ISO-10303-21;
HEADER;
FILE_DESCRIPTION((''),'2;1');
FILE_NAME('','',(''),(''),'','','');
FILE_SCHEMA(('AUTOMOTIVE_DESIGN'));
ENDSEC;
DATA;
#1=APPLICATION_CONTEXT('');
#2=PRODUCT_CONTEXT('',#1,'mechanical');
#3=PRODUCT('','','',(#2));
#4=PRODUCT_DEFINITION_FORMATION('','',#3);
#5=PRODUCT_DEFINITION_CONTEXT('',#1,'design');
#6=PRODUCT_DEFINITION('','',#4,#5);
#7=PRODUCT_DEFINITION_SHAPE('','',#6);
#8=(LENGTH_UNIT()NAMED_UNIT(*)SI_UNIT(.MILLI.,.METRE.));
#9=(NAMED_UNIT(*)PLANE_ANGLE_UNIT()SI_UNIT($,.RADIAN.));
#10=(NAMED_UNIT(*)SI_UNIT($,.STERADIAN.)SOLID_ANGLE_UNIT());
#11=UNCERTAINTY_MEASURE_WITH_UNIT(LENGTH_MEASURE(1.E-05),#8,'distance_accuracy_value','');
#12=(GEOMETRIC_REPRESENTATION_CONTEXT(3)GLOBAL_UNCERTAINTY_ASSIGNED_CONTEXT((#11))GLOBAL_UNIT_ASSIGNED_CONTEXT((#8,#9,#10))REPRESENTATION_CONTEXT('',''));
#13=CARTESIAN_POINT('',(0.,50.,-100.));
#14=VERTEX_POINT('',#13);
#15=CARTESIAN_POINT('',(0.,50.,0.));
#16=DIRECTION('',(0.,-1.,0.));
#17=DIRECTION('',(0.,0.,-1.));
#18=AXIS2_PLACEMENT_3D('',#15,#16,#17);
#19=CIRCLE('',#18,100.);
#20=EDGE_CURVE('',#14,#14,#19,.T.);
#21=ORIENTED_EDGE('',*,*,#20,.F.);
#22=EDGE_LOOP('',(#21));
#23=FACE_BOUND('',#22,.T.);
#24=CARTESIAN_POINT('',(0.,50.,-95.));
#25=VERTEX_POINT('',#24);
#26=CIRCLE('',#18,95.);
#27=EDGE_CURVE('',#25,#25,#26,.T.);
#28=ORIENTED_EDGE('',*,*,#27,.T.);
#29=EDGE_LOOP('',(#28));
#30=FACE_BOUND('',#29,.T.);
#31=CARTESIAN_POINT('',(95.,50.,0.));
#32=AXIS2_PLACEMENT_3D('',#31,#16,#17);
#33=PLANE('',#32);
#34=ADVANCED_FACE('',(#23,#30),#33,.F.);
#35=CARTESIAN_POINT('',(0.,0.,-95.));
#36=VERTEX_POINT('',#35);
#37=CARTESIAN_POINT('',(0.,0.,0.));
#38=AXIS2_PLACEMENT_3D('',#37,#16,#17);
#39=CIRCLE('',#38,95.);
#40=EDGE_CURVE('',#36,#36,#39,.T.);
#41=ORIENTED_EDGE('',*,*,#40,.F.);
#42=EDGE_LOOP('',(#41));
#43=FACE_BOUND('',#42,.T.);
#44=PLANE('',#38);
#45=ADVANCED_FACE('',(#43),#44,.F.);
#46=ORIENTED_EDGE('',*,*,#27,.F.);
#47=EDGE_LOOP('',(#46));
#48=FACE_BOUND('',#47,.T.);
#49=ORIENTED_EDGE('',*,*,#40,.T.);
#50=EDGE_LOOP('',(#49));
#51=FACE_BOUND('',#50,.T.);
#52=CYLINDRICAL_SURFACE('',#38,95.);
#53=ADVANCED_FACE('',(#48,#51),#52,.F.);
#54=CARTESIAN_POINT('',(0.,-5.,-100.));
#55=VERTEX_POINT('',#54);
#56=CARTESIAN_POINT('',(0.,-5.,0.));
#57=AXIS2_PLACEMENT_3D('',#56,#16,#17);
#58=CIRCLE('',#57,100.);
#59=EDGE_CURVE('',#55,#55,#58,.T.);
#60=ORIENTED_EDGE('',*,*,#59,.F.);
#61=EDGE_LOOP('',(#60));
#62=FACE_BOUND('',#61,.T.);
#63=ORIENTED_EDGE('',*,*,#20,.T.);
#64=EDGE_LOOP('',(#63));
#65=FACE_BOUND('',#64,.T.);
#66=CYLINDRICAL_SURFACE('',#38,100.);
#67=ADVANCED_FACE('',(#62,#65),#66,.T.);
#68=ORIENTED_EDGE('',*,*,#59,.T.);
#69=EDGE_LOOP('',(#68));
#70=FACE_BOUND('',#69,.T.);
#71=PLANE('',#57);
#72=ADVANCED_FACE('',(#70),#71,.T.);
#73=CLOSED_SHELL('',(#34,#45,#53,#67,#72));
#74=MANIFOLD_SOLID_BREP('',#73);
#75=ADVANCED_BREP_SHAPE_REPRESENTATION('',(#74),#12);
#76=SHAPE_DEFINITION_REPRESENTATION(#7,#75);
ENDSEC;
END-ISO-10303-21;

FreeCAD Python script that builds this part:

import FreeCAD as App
import Part
import Sketcher

doc = App.newDocument("Part")
body = doc.addObject("PartDesign::Body", "Body")

sketch1 = body.newObject("Sketcher::SketchObject", "Sketch")
sketch1.AttachmentSupport = (doc.getObject("XY_Plane"), [""])
sketch1.MapMode = "FlatFace"
sketch1.addGeometry([
    Part.LineSegment(App.Vector(95, 0, 0), App.Vector(0, 0, 0)),
    Part.LineSegment(App.Vector(0, 0, 0), App.Vector(0, -5, 0)),
    Part.LineSegment(App.Vector(0, -5, 0), App.Vector(100, -5, 0)),
    Part.LineSegment(App.Vector(100, -5, 0), App.Vector(100, 50, 0)),
    Part.LineSegment(App.Vector(100, 50, 0), App.Vector(95, 50, 0)),
    Part.LineSegment(App.Vector(95, 50, 0), App.Vector(95, 0, 0)),
], False)
sketch1.addConstraint([
    Sketcher.Constraint("Coincident", 0, 2, 1, 1),
    Sketcher.Constraint("Coincident", 1, 2, 2, 1),
    Sketcher.Constraint("Coincident", 2, 2, 3, 1),
    Sketcher.Constraint("Coincident", 3, 2, 4, 1),
    Sketcher.Constraint("Coincident", 4, 2, 5, 1),
    Sketcher.Constraint("Coincident", 5, 2, 0, 1),
    Sketcher.Constraint("Horizontal", 0),
    Sketcher.Constraint("Vertical", 1),
    Sketcher.Constraint("Horizontal", 2),
    Sketcher.Constraint("Vertical", 3),
    Sketcher.Constraint("Horizontal", 4),
    Sketcher.Constraint("Vertical", 5),
    Sketcher.Constraint("Coincident", 0, 2, -1, 1),
    Sketcher.Constraint("Equal", 4, 1),
    Sketcher.Constraint("DistanceX", 0, 2, 0, 1, 95.0),
    Sketcher.Constraint("DistanceX", 2, 1, 2, 2, 100.0),
    Sketcher.Constraint("DistanceY", 3, 1, 3, 2, 55.0),
])
revolution = body.newObject("PartDesign::Revolution", "Revolution")
revolution.Profile = sketch1
revolution.ReferenceAxis = (sketch1, ["V_Axis"])
revolution.Angle = 360

doc.recompute()
